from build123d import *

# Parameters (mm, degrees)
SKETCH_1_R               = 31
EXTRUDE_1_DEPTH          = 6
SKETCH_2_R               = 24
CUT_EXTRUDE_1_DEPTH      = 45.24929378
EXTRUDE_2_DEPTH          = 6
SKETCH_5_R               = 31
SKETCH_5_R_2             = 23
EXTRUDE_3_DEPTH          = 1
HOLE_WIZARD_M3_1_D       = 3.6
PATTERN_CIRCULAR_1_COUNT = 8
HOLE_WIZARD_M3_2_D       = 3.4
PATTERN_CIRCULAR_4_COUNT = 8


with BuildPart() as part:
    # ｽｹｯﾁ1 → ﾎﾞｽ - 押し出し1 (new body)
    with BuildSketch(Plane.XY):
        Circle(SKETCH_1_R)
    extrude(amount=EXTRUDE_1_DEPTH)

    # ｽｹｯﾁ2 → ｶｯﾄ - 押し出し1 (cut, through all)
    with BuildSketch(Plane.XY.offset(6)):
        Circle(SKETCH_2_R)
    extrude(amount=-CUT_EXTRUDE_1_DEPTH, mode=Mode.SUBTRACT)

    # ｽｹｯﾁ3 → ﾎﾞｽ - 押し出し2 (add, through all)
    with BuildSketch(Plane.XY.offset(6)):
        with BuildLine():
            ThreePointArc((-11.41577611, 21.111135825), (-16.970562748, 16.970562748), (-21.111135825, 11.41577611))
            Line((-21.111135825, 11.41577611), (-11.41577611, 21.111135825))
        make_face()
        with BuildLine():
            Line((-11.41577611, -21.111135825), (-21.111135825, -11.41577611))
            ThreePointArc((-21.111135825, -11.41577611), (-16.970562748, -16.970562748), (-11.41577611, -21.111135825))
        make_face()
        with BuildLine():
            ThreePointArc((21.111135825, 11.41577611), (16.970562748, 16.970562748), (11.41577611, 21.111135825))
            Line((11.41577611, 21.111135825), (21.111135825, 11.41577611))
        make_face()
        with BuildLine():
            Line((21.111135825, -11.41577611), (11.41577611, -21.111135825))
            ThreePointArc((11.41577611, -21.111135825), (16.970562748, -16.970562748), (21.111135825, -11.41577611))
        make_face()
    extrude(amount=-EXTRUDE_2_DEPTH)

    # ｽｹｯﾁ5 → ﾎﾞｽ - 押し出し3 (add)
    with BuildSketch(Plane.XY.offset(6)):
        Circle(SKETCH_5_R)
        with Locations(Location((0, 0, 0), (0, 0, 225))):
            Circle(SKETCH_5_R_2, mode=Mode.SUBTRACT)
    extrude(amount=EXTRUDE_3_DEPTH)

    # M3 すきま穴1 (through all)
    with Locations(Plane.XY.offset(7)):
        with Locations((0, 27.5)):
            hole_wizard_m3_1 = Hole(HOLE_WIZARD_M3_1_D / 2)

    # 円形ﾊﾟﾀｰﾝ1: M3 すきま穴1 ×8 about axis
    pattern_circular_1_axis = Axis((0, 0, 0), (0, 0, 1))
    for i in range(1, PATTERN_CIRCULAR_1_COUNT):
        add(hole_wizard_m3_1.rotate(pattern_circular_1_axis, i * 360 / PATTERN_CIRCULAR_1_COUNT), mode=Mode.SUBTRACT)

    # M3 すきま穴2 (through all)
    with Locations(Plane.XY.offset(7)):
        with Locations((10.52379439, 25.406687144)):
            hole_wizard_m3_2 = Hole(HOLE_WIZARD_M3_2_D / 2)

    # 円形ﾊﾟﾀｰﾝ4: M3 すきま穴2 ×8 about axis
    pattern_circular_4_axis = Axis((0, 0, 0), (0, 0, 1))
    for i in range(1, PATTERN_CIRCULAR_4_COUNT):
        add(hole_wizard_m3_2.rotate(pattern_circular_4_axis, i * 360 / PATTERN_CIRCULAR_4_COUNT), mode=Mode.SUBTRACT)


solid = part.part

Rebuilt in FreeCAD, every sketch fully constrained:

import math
import FreeCAD as App
import Part
import Sketcher

doc = App.newDocument("Part")
body = doc.addObject("PartDesign::Body", "Body")

sketch1 = body.newObject("Sketcher::SketchObject", "Sketch")
sketch1.AttachmentSupport = (doc.getObject("XY_Plane"), [""])
sketch1.MapMode = "FlatFace"
sketch1.addGeometry(Part.Circle(App.Vector(0, 0, 0), App.Vector(0, 0, 1), 31), False)
sketch1.addConstraint([
    Sketcher.Constraint("Coincident", 0, 3, -1, 1),
    Sketcher.Constraint("Diameter", 0, 62.0),
])
pad1 = body.newObject("PartDesign::Pad", "Pad")
pad1.Profile = sketch1
pad1.Length = 6

sketch2 = body.newObject("Sketcher::SketchObject", "Sketch001")
sketch2.AttachmentSupport = (doc.getObject("XY_Plane"), [""])
sketch2.MapMode = "FlatFace"
sketch2.AttachmentOffset = App.Placement(App.Vector(0, 0, 6), App.Rotation())
sketch2.addGeometry(Part.Circle(App.Vector(0, 0, 0), App.Vector(0, 0, 1), 24), False)
sketch2.addConstraint([
    Sketcher.Constraint("Coincident", 0, 3, -1, 1),
    Sketcher.Constraint("Diameter", 0, 48.0),
])
pocket1 = body.newObject("PartDesign::Pocket", "Pocket")
pocket1.Profile = sketch2
pocket1.Type = "ThroughAll"

sketch3 = body.newObject("Sketcher::SketchObject", "Sketch002")
sketch3.AttachmentSupport = (doc.getObject("XY_Plane"), [""])
sketch3.MapMode = "FlatFace"
sketch3.AttachmentOffset = App.Placement(App.Vector(0, 0, 6), App.Rotation())
sketch3.addGeometry([
    Part.ArcOfCircle(Part.Circle(App.Vector(0, 0, 0), App.Vector(0, 0, 1), 24), math.radians(118), math.radians(152)),
    Part.LineSegment(App.Vector(-21, 11, 0), App.Vector(-11, 21, 0)),
    Part.LineSegment(App.Vector(-11, -21, 0), App.Vector(-21, -11, 0)),
    Part.ArcOfCircle(Part.Circle(App.Vector(0, 0, 0), App.Vector(0, 0, 1), 24), math.radians(-152), math.radians(-118)),
    Part.ArcOfCircle(Part.Circle(App.Vector(0, 0, 0), App.Vector(0, 0, 1), 24), math.radians(28), math.radians(62)),
    Part.LineSegment(App.Vector(11, 21, 0), App.Vector(21, 11, 0)),
    Part.LineSegment(App.Vector(21, -11, 0), App.Vector(11, -21, 0)),
    Part.ArcOfCircle(Part.Circle(App.Vector(0, 0, 0), App.Vector(0, 0, 1), 24), math.radians(-62), math.radians(-28)),
], False)
sketch3.addConstraint([
    Sketcher.Constraint("Coincident", 0, 1, 1, 2),
    Sketcher.Constraint("Coincident", 1, 1, 0, 2),
    Sketcher.Constraint("Coincident", 2, 1, 3, 2),
    Sketcher.Constraint("Coincident", 3, 1, 2, 2),
    Sketcher.Constraint("Coincident", 4, 1, 5, 2),
    Sketcher.Constraint("Coincident", 5, 1, 4, 2),
    Sketcher.Constraint("Coincident", 6, 1, 7, 2),
    Sketcher.Constraint("Coincident", 7, 1, 6, 2),
    Sketcher.Constraint("Coincident", 0, 3, -1, 1),
    Sketcher.Constraint("Coincident", 3, 3, -1, 1),
    Sketcher.Constraint("Coincident", 4, 3, -1, 1),
    Sketcher.Constraint("Coincident", 7, 3, -1, 1),
    Sketcher.Constraint("Equal", 0, 3),
    Sketcher.Constraint("Equal", 3, 4),
    Sketcher.Constraint("Equal", 4, 7),
    Sketcher.Constraint("Perpendicular", 1, 2),
    Sketcher.Constraint("Parallel", 2, 5),
    Sketcher.Constraint("Perpendicular", 5, 6),
    Sketcher.Constraint("Horizontal", 1, 1, 4, 1),
    Sketcher.Constraint("Horizontal", 0, 1, 5, 1),
    Sketcher.Constraint("Horizontal", 3, 1, 6, 1),
    Sketcher.Constraint("Vertical", 0, 1, 2, 1),
    Sketcher.Constraint("Radius", 0, 24.0),
    Sketcher.Constraint("Distance", 1, 13.711309),
])
pad2 = body.newObject("PartDesign::Pad", "Pad001")
pad2.Profile = sketch3
pad2.Length = 6
pad2.Reversed = True

sketch4 = body.newObject("Sketcher::SketchObject", "Sketch003")
sketch4.AttachmentSupport = (doc.getObject("XY_Plane"), [""])
sketch4.MapMode = "FlatFace"
sketch4.AttachmentOffset = App.Placement(App.Vector(0, 0, 6), App.Rotation())
sketch4.addGeometry([
    Part.Circle(App.Vector(0, 0, 0), App.Vector(0, 0, 1), 31),
    Part.Circle(App.Vector(0, 0, 0), App.Vector(0, 0, 1), 23),
], False)
sketch4.addConstraint([
    Sketcher.Constraint("Coincident", 0, 3, -1, 1),
    Sketcher.Constraint("Coincident", 1, 3, -1, 1),
    Sketcher.Constraint("Diameter", 0, 62.0),
    Sketcher.Constraint("Diameter", 1, 46.0),
])
pad3 = body.newObject("PartDesign::Pad", "Pad002")
pad3.Profile = sketch4
pad3.Length = 1

sketch5 = body.newObject("Sketcher::SketchObject", "Sketch004")
sketch5.AttachmentSupport = (doc.getObject("XY_Plane"), [""])
sketch5.MapMode = "FlatFace"
sketch5.AttachmentOffset = App.Placement(App.Vector(0, 0, 7), App.Rotation())
sketch5.addGeometry(Part.Circle(App.Vector(0, 27.5, 0), App.Vector(0, 0, 1), 1.8), False)
sketch5.addConstraint([
    Sketcher.Constraint("PointOnObject", 0, 3, -2),
    Sketcher.Constraint("Diameter", 0, 3.6),
    Sketcher.Constraint("DistanceY", -1, 1, 0, 3, 27.5),
])
doc.recompute()
hole = body.newObject("PartDesign::Hole", "Hole")
hole.Profile = sketch5
hole.ThreadType = "None"
hole.Diameter = 3.6
hole.DepthType = "ThroughAll"
doc.recompute()

polarpattern = body.newObject("PartDesign::PolarPattern", "PolarPattern")
polarpattern.Originals = [hole]
polarpattern.Axis = (doc.getObject("Z_Axis"), [""])
polarpattern.Angle = 360
polarpattern.Occurrences = 8
body.Tip = polarpattern

sketch6 = body.newObject("Sketcher::SketchObject", "Sketch005")
sketch6.AttachmentSupport = (doc.getObject("XY_Plane"), [""])
sketch6.MapMode = "FlatFace"
sketch6.AttachmentOffset = App.Placement(App.Vector(0, 0, 7), App.Rotation())
sketch6.addGeometry(Part.Circle(App.Vector(10.5, 25.4, 0), App.Vector(0, 0, 1), 1.7), False)
sketch6.addConstraint([
    Sketcher.Constraint("Diameter", 0, 3.4),
    Sketcher.Constraint("DistanceX", -1, 1, 0, 3, 10.523794),
    Sketcher.Constraint("DistanceY", -1, 1, 0, 3, 25.406687),
])
doc.recompute()
hole2 = body.newObject("PartDesign::Hole", "Hole001")
hole2.Profile = sketch6
hole2.ThreadType = "None"
hole2.Diameter = 3.4
hole2.DepthType = "ThroughAll"
doc.recompute()

polarpattern2 = body.newObject("PartDesign::PolarPattern", "PolarPattern001")
polarpattern2.Originals = [hole2]
polarpattern2.Axis = (doc.getObject("Z_Axis"), [""])
polarpattern2.Angle = 360
polarpattern2.Occurrences = 8
body.Tip = polarpattern2

doc.recompute()
